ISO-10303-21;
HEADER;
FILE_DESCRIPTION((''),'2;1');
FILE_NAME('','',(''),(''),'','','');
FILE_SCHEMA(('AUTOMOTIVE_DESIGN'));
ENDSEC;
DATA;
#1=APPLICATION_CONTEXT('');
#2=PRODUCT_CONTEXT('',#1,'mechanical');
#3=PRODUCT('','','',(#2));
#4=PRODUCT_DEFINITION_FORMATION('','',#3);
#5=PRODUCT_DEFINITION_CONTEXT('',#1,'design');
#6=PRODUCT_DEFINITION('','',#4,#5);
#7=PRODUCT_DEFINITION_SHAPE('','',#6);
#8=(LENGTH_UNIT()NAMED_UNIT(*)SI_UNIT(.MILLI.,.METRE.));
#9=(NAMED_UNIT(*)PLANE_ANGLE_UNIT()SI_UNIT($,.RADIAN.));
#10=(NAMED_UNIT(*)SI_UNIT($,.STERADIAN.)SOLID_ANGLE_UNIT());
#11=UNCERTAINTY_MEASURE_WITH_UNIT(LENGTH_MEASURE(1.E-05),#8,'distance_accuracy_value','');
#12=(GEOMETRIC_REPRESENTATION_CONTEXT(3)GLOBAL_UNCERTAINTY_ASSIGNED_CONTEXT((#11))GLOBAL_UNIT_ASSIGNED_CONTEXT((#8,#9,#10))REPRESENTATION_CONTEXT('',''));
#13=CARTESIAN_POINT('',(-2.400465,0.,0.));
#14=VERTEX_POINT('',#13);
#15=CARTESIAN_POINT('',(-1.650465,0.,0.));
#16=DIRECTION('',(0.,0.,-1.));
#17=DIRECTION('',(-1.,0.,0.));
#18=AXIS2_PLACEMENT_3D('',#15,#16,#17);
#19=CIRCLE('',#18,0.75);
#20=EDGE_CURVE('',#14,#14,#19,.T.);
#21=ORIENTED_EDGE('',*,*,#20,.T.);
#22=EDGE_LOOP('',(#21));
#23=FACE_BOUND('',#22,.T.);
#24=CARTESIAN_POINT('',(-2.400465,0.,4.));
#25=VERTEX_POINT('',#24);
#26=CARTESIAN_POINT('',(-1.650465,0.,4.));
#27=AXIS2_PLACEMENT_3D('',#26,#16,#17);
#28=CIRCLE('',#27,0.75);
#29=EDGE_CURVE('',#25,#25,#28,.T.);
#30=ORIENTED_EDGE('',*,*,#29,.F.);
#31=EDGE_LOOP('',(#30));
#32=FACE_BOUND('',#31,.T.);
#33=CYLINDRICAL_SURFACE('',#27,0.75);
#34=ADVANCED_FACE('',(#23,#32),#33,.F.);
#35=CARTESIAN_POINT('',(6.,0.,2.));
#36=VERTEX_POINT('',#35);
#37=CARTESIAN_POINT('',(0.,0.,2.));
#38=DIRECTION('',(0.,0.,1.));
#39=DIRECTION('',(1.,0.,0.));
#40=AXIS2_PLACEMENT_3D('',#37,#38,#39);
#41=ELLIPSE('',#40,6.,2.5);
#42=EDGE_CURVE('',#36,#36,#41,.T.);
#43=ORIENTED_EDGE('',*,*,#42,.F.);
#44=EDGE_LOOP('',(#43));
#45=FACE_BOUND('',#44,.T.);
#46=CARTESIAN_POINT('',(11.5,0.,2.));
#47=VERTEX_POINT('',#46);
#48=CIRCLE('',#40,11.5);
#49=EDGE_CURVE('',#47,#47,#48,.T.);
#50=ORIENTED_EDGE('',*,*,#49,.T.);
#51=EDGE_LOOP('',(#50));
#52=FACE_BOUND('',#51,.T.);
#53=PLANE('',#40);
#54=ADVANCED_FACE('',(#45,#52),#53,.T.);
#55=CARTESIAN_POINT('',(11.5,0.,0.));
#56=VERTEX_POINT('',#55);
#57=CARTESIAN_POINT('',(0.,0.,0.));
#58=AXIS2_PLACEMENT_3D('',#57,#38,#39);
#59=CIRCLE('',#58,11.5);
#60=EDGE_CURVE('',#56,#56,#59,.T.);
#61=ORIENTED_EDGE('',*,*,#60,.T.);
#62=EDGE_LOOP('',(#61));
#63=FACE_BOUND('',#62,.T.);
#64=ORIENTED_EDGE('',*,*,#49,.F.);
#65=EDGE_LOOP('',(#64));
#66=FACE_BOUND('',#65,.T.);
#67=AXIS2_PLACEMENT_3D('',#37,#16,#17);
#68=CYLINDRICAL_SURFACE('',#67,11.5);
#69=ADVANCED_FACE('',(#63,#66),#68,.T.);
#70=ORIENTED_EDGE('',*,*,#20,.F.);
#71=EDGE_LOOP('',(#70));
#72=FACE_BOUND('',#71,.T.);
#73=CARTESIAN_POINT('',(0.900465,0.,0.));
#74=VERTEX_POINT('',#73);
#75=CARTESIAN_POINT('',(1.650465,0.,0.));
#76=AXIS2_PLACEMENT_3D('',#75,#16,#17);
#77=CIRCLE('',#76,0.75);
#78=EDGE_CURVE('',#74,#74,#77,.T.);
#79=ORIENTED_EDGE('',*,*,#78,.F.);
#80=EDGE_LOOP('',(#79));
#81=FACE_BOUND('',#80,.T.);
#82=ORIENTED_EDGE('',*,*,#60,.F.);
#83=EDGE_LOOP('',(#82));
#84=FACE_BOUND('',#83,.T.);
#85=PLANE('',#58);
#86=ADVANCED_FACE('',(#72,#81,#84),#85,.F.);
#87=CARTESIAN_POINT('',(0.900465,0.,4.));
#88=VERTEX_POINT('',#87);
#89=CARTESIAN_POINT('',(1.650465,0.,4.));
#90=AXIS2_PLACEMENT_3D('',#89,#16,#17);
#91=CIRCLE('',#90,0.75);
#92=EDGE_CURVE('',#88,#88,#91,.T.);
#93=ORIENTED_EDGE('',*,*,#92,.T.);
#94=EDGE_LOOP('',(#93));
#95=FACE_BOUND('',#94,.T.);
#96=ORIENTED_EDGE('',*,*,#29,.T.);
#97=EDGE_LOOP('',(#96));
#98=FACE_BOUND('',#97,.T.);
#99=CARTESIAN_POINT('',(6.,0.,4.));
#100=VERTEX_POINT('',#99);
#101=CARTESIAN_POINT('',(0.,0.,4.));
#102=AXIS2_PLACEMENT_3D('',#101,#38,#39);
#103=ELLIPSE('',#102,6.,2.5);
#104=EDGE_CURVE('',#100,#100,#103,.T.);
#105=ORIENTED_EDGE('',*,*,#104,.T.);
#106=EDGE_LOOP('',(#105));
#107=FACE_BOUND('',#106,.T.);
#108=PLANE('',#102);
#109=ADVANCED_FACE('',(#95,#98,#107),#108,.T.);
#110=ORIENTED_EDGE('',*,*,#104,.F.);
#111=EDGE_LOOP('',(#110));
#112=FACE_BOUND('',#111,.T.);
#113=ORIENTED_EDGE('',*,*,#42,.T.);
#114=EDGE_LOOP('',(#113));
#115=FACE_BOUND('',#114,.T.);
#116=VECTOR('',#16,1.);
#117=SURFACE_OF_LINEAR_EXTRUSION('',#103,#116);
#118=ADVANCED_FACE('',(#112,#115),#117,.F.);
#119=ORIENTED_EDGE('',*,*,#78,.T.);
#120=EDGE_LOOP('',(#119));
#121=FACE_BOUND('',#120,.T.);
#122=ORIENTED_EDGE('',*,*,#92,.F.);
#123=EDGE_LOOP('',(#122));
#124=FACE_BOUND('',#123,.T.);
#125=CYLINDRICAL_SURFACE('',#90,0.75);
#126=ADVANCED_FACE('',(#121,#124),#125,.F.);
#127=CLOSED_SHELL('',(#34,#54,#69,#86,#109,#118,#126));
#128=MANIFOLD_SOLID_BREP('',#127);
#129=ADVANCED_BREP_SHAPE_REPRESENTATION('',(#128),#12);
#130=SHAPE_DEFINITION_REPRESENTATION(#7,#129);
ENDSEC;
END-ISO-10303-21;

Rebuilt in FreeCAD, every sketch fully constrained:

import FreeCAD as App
import Part
import Sketcher

V = App.Vector
Q = App.Units.Quantity

doc = App.newDocument("Part")
body = doc.addObject("PartDesign::Body", "Body")

# Sketch on XY plane
sketch1 = doc.addObject("Sketcher::SketchObject", "Sketch")
body.addObject(sketch1)
sketch1.AttachmentSupport = (doc.XY_Plane, [""])
sketch1.MapMode = "FlatFace"
sketch1.addGeometry(Part.Circle(V(0, 0, 0), V(0, 0, 1), 12), False)
sketch1.addConstraint([
    Sketcher.Constraint("Coincident", 0, 3, -1, 1),
    Sketcher.Constraint("Diameter", 0, Q("23 mm")),
])
pad1 = doc.addObject("PartDesign::Pad", "Pad")
body.addObject(pad1)
pad1.Profile = sketch1
pad1.Length = 2

# Sketch on XY plane
sketch2 = doc.addObject("Sketcher::SketchObject", "Sketch001")
body.addObject(sketch2)
sketch2.AttachmentSupport = (doc.XY_Plane, [""])
sketch2.MapMode = "FlatFace"
sketch2.AttachmentOffset = App.Placement(V(0, 0, 2), App.Rotation())
sketch2.addGeometry(Part.Ellipse(V(6, 0, 0), V(0, 2.5, 0), V(0, 0, 0)), False)
sketch2.addConstraint(Sketcher.Constraint("Block", 0))
pad2 = doc.addObject("PartDesign::Pad", "Pad001")
body.addObject(pad2)
pad2.Profile = sketch2
pad2.Length = 2

# Sketch on XY plane
sketch3 = doc.addObject("Sketcher::SketchObject", "Sketch002")
body.addObject(sketch3)
sketch3.AttachmentSupport = (doc.XY_Plane, [""])
sketch3.MapMode = "FlatFace"
sketch3.addGeometry([
    Part.Circle(V(-1.7, 0, 0), V(0, 0, 1), 0.8),
    Part.Circle(V(1.7, 0, 0), V(0, 0, 1), 0.8),
], False)
sketch3.addConstraint([
    Sketcher.Constraint("Equal", 0, 1),
    Sketcher.Constraint("Symmetric", 0, 3, 1, 3, -1, 1),
    Sketcher.Constraint("PointOnObject", 0, 3, -1),
    Sketcher.Constraint("Diameter", 0, Q("1.5 mm")),
    Sketcher.Constraint("DistanceX", 0, 3, 1, 3, Q("3.300929 mm")),
])
pocket1 = doc.addObject("PartDesign::Pocket", "Pocket")
body.addObject(pocket1)
pocket1.Profile = sketch3
pocket1.Type = "ThroughAll"
pocket1.Reversed = True

doc.recompute()
